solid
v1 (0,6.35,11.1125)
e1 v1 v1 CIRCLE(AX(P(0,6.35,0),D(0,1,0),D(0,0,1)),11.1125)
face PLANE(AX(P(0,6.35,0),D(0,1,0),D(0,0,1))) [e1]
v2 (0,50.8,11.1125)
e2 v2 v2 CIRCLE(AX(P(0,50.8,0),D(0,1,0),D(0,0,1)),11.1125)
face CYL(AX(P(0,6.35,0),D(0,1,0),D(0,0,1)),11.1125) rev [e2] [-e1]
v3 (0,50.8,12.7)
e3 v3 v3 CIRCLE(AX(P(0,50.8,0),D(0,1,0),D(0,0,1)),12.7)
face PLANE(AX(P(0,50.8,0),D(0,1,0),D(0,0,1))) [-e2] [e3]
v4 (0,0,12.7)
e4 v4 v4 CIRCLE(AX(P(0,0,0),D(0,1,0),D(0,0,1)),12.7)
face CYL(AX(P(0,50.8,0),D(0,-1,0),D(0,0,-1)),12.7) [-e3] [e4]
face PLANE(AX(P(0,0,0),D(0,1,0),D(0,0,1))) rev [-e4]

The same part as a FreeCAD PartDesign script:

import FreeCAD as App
import Part
import Sketcher
from FreeCAD import Vector
Q = App.Units.Quantity

doc = App.newDocument("Part")
params = doc.addObject("Spreadsheet::Sheet", "Params")
for row, (alias, value) in enumerate([
    ("sketch1_diameter", "1 in"),
    ("pad1_length", "2 in"),
    ("sketch2_diameter", "0.875 in"),
    ("pocket1_length", "1.75 in"),
], start=1):
    params.set(f"A{row}", alias)
    params.set(f"B{row}", "=" + value)
    params.setAlias(f"B{row}", alias)

body = doc.addObject("PartDesign::Body", "Body")

sketch1 = body.newObject("Sketcher::SketchObject", "Sketch")
sketch1.AttachmentSupport = (doc.getObject("XZ_Plane"), [""])
sketch1.MapMode = "FlatFace"
sketch1.addGeometry(Part.Circle(Vector(0, 0, 0), Vector(0, 0, 1), 12.7), False)
sketch1.addConstraint([
    Sketcher.Constraint("Coincident", 0, 3, -1, 1),
    Sketcher.Constraint("Diameter", 0, Q("1 in")),
])
sketch1.setExpression("Constraints[1]", "Params.sketch1_diameter")
pad1 = body.newObject("PartDesign::Pad", "Pad")
pad1.Profile = sketch1
pad1.setExpression("Length", "Params.pad1_length")
pad1.Reversed = True

sketch2 = body.newObject("Sketcher::SketchObject", "Sketch001")
sketch2.AttachmentSupport = (doc.getObject("XZ_Plane"), [""])
sketch2.MapMode = "FlatFace"
sketch2.AttachmentOffset = App.Placement(Vector(0, 0, -2 * 25.4), App.Rotation())
sketch2.addGeometry(Part.Circle(Vector(0, 0, 0), Vector(0, 0, 1), 11.1125), False)
sketch2.addConstraint([
    Sketcher.Constraint("Coincident", 0, 3, -1, 1),
    Sketcher.Constraint("Diameter", 0, Q("0.875 in")),
])
sketch2.setExpression("Constraints[1]", "Params.sketch2_diameter")
pocket1 = body.newObject("PartDesign::Pocket", "Pocket")
pocket1.Profile = sketch2
pocket1.setExpression("Length", "Params.pocket1_length")
pocket1.Reversed = True

doc.recompute()
